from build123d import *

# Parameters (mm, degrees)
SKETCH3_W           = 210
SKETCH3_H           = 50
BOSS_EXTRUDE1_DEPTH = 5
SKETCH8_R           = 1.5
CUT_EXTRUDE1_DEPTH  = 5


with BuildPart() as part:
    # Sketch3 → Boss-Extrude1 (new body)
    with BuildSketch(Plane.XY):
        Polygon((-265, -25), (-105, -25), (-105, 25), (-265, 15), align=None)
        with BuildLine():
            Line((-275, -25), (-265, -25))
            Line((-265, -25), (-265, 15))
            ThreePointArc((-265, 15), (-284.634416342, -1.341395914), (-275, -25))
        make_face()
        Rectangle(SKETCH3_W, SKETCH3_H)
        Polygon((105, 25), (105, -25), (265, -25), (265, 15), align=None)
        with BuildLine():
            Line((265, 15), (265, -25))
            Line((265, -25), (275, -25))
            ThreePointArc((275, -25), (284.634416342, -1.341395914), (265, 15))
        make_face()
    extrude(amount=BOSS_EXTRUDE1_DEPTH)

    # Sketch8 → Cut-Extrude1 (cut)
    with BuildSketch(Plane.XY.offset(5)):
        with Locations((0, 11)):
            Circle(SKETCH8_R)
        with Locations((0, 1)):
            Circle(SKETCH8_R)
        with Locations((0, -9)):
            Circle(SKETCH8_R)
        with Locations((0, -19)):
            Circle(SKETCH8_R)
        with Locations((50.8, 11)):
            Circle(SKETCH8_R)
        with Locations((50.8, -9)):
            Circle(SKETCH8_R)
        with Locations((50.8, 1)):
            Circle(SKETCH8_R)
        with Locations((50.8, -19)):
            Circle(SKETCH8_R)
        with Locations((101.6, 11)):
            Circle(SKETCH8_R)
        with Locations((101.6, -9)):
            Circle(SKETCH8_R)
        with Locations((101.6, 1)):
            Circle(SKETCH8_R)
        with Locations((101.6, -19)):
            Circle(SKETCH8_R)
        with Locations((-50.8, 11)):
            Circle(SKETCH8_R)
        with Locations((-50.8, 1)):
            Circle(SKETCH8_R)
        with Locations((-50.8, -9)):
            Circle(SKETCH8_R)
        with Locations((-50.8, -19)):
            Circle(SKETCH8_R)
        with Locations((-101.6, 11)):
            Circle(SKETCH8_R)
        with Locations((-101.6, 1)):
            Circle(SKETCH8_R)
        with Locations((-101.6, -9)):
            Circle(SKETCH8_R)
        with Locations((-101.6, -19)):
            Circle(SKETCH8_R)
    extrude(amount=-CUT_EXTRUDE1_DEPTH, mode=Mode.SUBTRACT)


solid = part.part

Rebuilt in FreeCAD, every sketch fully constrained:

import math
import FreeCAD as App
import Part
import Sketcher
from FreeCAD import Vector
Q = App.Units.Quantity

doc = App.newDocument("Part")
body = doc.addObject("PartDesign::Body", "Body")

# Sketch on XY plane
sketch1 = body.newObject("Sketcher::SketchObject", "Sketch")
sketch1.AttachmentSupport = (doc.getObject("XY_Plane"), [""])
sketch1.MapMode = "FlatFace"
sketch1.addGeometry([
    Part.LineSegment(Vector(-105, 25, 0), Vector(-265, 15, 0)),  # 0
    Part.ArcOfCircle(Part.Circle(Vector(-264, -7, 0), Vector(0, 0, 1), 22), math.radians(94), math.radians(238)),  # 1
    Part.LineSegment(Vector(-275, -25, 0), Vector(275, -25, 0)),  # 2
    Part.ArcOfCircle(Part.Circle(Vector(264, -7, 0), Vector(0, 0, 1), 22), math.radians(-58), math.radians(86)),  # 3
    Part.LineSegment(Vector(265, 15, 0), Vector(105, 25, 0)),  # 4
    Part.LineSegment(Vector(105, 25, 0), Vector(-105, 25, 0)),  # 5
], False)
sketch1.addConstraint([
    Sketcher.Constraint("Tangent", 0, 2, 1, 1),
    Sketcher.Constraint("Coincident", 1, 2, 2, 1),
    Sketcher.Constraint("Coincident", 2, 2, 3, 1),
    Sketcher.Constraint("Tangent", 3, 2, 4, 1),
    Sketcher.Constraint("Coincident", 4, 2, 5, 1),
    Sketcher.Constraint("Coincident", 5, 2, 0, 1),
    Sketcher.Constraint("Horizontal", 2),
    Sketcher.Constraint("Horizontal", 5),
    Sketcher.Constraint("Equal", 1, 3),
    Sketcher.Constraint("Symmetric", 1, 3, 3, 3, -2),
    Sketcher.Constraint("Equal", 0, 4),
    Sketcher.Constraint("DistanceX", 2, 1, 2, 2, Q("550 mm")),
    Sketcher.Constraint("DistanceX", 5, 2, 5, 1, Q("210 mm")),
    Sketcher.Constraint("DistanceX", 0, 2, -1, 1, Q("265 mm")),
    Sketcher.Constraint("DistanceY", -1, 1, 0, 2, Q("15 mm")),
    Sketcher.Constraint("DistanceY", 1, 2, -1, 1, Q("25 mm")),
    Sketcher.Constraint("DistanceY", -1, 1, 4, 2, Q("25 mm")),
])
pad1 = body.newObject("PartDesign::Pad", "Pad")
pad1.Profile = sketch1
pad1.Length = 5

# Sketch on XY plane
sketch2 = body.newObject("Sketcher::SketchObject", "Sketch001")
sketch2.AttachmentSupport = (doc.getObject("XY_Plane"), [""])
sketch2.MapMode = "FlatFace"
sketch2.AttachmentOffset = App.Placement(Vector(0, 0, 5), App.Rotation())
sketch2.addGeometry([
    Part.Circle(Vector(0, 11, 0), Vector(0, 0, 1), 1.5),  # 0
    Part.Circle(Vector(0, 1, 0), Vector(0, 0, 1), 1.5),  # 1
    Part.Circle(Vector(0, -9, 0), Vector(0, 0, 1), 1.5),  # 2
    Part.Circle(Vector(0, -19, 0), Vector(0, 0, 1), 1.5),  # 3
    Part.Circle(Vector(50.8, 11, 0), Vector(0, 0, 1), 1.5),  # 4
    Part.Circle(Vector(50.8, -9, 0), Vector(0, 0, 1), 1.5),  # 5
    Part.Circle(Vector(50.8, 1, 0), Vector(0, 0, 1), 1.5),  # 6
    Part.Circle(Vector(50.8, -19, 0), Vector(0, 0, 1), 1.5),  # 7
    Part.Circle(Vector(101.6, 11, 0), Vector(0, 0, 1), 1.5),  # 8
    Part.Circle(Vector(101.6, -9, 0), Vector(0, 0, 1), 1.5),  # 9
    Part.Circle(Vector(101.6, 1, 0), Vector(0, 0, 1), 1.5),  # 10
    Part.Circle(Vector(101.6, -19, 0), Vector(0, 0, 1), 1.5),  # 11
    Part.Circle(Vector(-50.8, 11, 0), Vector(0, 0, 1), 1.5),  # 12
    Part.Circle(Vector(-50.8, 1, 0), Vector(0, 0, 1), 1.5),  # 13
    Part.Circle(Vector(-50.8, -9, 0), Vector(0, 0, 1), 1.5),  # 14
    Part.Circle(Vector(-50.8, -19, 0), Vector(0, 0, 1), 1.5),  # 15
    Part.Circle(Vector(-101.6, 11, 0), Vector(0, 0, 1), 1.5),  # 16
    Part.Circle(Vector(-101.6, 1, 0), Vector(0, 0, 1), 1.5),  # 17
    Part.Circle(Vector(-101.6, -9, 0), Vector(0, 0, 1), 1.5),  # 18
    Part.Circle(Vector(-101.6, -19, 0), Vector(0, 0, 1), 1.5),  # 19
], False)
sketch2.addConstraint([
    Sketcher.Constraint("Equal", 0, 1),
    Sketcher.Constraint("Equal", 1, 2),
    Sketcher.Constraint("Equal", 2, 3),
    Sketcher.Constraint("Equal", 3, 4),
    Sketcher.Constraint("Equal", 4, 5),
    Sketcher.Constraint("Equal", 5, 6),
    Sketcher.Constraint("Equal", 6, 7),
    Sketcher.Constraint("Equal", 7, 8),
    Sketcher.Constraint("Equal", 8, 9),
    Sketcher.Constraint("Equal", 9, 10),
    Sketcher.Constraint("Equal", 10, 11),
    Sketcher.Constraint("Equal", 11, 12),
    Sketcher.Constraint("Equal", 12, 13),
    Sketcher.Constraint("Equal", 13, 14),
    Sketcher.Constraint("Equal", 14, 15),
    Sketcher.Constraint("Equal", 15, 16),
    Sketcher.Constraint("Equal", 16, 17),
    Sketcher.Constraint("Equal", 17, 18),
    Sketcher.Constraint("Equal", 18, 19),
    Sketcher.Constraint("Symmetric", 4, 3, 12, 3, -2),
    Sketcher.Constraint("Symmetric", 6, 3, 13, 3, -2),
    Sketcher.Constraint("Symmetric", 5, 3, 14, 3, -2),
    Sketcher.Constraint("Symmetric", 7, 3, 15, 3, -2),
    Sketcher.Constraint("Symmetric", 8, 3, 16, 3, -2),
    Sketcher.Constraint("Symmetric", 10, 3, 17, 3, -2),
    Sketcher.Constraint("Symmetric", 9, 3, 18, 3, -2),
    Sketcher.Constraint("Symmetric", 11, 3, 19, 3, -2),
    Sketcher.Constraint("PointOnObject", 0, 3, -2),
    Sketcher.Constraint("PointOnObject", 1, 3, -2),
    Sketcher.Constraint("PointOnObject", 2, 3, -2),
    Sketcher.Constraint("PointOnObject", 3, 3, -2),
    Sketcher.Constraint("Horizontal", 0, 3, 4, 3),
    Sketcher.Constraint("Horizontal", 2, 3, 5, 3),
    Sketcher.Constraint("Horizontal", 1, 3, 6, 3),
    Sketcher.Constraint("Horizontal", 3, 3, 7, 3),
    Sketcher.Constraint("Horizontal", 4, 3, 8, 3),
    Sketcher.Constraint("Horizontal", 5, 3, 9, 3),
    Sketcher.Constraint("Horizontal", 6, 3, 10, 3),
    Sketcher.Constraint("Horizontal", 7, 3, 11, 3),
    Sketcher.Constraint("Vertical", 4, 3, 5, 3),
    Sketcher.Constraint("Vertical", 5, 3, 6, 3),
    Sketcher.Constraint("Vertical", 6, 3, 7, 3),
    Sketcher.Constraint("Vertical", 8, 3, 9, 3),
    Sketcher.Constraint("Vertical", 9, 3, 10, 3),
    Sketcher.Constraint("Vertical", 10, 3, 11, 3),
    Sketcher.Constraint("Diameter", 0, Q("3 mm")),
    Sketcher.Constraint("DistanceY", -1, 1, 0, 3, Q("11 mm")),
    Sketcher.Constraint("DistanceY", -1, 1, 1, 3, Q("1 mm")),
    Sketcher.Constraint("DistanceY", 2, 3, -1, 1, Q("9 mm")),
    Sketcher.Constraint("DistanceY", 3, 3, -1, 1, Q("19 mm")),
    Sketcher.Constraint("DistanceX", -1, 1, 4, 3, Q("50.8 mm")),
    Sketcher.Constraint("DistanceX", -1, 1, 8, 3, Q("101.6 mm")),
])
pocket1 = body.newObject("PartDesign::Pocket", "Pocket")
pocket1.Profile = sketch2
pocket1.Length = 5

doc.recompute()
